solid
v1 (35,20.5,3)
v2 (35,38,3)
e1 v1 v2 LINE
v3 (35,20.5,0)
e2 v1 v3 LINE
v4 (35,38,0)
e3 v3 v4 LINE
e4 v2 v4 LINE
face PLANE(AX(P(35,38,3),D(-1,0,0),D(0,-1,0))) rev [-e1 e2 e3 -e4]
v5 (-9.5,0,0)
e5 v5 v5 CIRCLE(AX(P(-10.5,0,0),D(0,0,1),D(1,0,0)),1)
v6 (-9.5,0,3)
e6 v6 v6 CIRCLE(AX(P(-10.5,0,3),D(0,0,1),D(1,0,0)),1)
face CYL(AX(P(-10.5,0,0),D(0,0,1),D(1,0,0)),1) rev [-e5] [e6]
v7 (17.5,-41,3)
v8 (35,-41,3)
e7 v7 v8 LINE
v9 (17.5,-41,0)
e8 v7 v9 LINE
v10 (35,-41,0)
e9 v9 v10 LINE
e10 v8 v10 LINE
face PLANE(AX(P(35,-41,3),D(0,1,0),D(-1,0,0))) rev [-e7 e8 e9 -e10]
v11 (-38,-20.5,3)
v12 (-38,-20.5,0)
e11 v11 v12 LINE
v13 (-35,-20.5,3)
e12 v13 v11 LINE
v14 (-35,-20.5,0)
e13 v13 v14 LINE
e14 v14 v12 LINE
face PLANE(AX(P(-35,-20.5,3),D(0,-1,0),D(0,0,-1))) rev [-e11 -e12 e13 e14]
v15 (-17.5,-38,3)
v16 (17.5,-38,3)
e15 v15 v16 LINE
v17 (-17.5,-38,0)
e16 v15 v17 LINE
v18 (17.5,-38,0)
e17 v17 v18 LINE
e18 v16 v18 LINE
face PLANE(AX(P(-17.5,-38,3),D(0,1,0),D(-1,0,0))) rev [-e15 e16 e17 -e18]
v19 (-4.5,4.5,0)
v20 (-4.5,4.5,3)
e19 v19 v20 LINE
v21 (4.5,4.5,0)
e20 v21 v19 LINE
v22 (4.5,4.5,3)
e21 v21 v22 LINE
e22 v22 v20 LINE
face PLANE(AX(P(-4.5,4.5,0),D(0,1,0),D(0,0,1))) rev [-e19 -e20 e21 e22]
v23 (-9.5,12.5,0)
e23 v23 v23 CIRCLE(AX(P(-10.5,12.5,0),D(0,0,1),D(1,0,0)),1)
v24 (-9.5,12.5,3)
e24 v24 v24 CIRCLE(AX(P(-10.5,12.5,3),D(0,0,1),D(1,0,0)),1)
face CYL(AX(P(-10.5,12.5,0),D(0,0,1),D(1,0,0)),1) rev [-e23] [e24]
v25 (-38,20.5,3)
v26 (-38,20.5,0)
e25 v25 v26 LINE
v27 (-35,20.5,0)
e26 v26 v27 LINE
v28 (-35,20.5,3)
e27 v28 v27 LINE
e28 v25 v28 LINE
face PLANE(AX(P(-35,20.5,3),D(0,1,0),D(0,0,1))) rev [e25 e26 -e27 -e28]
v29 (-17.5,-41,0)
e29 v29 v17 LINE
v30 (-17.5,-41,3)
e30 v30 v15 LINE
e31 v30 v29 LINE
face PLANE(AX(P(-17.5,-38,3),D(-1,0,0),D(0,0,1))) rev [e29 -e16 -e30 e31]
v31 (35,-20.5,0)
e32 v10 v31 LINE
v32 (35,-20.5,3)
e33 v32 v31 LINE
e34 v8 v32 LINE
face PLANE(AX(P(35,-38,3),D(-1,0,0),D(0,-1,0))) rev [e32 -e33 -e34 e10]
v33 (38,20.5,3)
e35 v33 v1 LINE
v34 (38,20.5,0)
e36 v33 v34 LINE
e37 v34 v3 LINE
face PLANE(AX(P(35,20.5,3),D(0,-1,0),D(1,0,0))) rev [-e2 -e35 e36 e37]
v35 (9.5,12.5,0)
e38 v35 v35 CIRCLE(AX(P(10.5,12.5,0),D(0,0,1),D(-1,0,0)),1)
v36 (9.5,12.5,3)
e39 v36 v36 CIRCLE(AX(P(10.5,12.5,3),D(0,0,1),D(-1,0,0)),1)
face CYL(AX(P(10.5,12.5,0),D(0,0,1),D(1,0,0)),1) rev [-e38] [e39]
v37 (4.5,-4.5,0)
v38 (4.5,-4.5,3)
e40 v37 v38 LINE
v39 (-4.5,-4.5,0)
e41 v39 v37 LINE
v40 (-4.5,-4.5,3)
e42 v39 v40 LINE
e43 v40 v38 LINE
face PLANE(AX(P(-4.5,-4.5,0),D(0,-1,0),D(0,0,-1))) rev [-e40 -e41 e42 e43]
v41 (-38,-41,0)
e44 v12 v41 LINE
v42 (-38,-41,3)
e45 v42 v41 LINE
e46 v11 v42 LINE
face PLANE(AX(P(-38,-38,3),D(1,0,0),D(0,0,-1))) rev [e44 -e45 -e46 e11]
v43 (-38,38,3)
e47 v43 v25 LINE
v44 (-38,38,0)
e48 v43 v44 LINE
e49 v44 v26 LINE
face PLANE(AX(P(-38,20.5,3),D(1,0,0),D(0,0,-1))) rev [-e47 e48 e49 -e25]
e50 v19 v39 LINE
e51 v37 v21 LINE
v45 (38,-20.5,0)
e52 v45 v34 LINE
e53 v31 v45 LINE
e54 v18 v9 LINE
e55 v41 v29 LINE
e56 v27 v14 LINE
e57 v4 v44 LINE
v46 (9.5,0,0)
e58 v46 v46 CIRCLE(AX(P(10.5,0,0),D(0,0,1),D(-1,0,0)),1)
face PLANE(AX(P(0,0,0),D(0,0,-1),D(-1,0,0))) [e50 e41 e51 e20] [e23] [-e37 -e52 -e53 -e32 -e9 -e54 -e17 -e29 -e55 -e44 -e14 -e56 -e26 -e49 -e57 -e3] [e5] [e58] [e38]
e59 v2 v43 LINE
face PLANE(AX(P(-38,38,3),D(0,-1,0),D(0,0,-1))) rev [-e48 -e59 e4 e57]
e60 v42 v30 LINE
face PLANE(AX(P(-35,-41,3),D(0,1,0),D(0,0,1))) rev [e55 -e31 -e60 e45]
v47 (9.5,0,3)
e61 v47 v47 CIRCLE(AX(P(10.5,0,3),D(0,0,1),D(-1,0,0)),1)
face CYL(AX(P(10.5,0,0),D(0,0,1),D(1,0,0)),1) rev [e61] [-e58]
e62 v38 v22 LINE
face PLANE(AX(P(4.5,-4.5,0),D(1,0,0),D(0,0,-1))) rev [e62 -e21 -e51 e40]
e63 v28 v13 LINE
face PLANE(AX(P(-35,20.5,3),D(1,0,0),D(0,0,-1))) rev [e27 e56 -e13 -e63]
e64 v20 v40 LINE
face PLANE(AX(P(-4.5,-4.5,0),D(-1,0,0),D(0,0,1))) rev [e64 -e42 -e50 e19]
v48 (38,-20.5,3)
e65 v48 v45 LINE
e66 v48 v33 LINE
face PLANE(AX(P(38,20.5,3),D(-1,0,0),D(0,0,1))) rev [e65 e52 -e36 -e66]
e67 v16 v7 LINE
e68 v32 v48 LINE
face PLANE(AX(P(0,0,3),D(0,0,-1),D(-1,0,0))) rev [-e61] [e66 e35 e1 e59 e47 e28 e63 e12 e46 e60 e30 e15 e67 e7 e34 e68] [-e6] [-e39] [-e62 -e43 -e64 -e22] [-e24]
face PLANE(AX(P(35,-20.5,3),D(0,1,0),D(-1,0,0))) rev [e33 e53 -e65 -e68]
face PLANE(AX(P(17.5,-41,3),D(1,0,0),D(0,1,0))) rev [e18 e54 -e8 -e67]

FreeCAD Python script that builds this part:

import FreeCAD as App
import Part
import Sketcher
Q = App.Units.Quantity

doc = App.newDocument("Part")
body = doc.addObject("PartDesign::Body", "Body")

# Sketch on XY plane
sketch1 = body.newObject("Sketcher::SketchObject", "Sketch")
sketch1.AttachmentSupport = (doc.getObject("XY_Plane"), [""])
sketch1.MapMode = "FlatFace"
sketch1.addGeometry(Part.LineSegment(App.Vector(35, 38, 0), App.Vector(-38, 38, 0)), False)
sketch1.addGeometry(Part.LineSegment(App.Vector(-38, 38, 0), App.Vector(-38, 20.5, 0)), False)
sketch1.addGeometry(Part.LineSegment(App.Vector(-38, 20.5, 0), App.Vector(-35, 20.5, 0)), False)
sketch1.addGeometry(Part.LineSegment(App.Vector(-35, 20.5, 0), App.Vector(-35, -20.5, 0)), False)
sketch1.addGeometry(Part.LineSegment(App.Vector(-35, -20.5, 0), App.Vector(-38, -20.5, 0)), False)
sketch1.addGeometry(Part.LineSegment(App.Vector(-38, -20.5, 0), App.Vector(-38, -41, 0)), False)
sketch1.addGeometry(Part.LineSegment(App.Vector(-38, -41, 0), App.Vector(-17.5, -41, 0)), False)
sketch1.addGeometry(Part.LineSegment(App.Vector(-17.5, -41, 0), App.Vector(-17.5, -38, 0)), False)
sketch1.addGeometry(Part.LineSegment(App.Vector(-17.5, -38, 0), App.Vector(17.5, -38, 0)), False)
sketch1.addGeometry(Part.LineSegment(App.Vector(17.5, -38, 0), App.Vector(17.5, -41, 0)), False)
sketch1.addGeometry(Part.LineSegment(App.Vector(17.5, -41, 0), App.Vector(35, -41, 0)), False)
sketch1.addGeometry(Part.LineSegment(App.Vector(35, -41, 0), App.Vector(35, -20.5, 0)), False)
sketch1.addGeometry(Part.LineSegment(App.Vector(35, -20.5, 0), App.Vector(38, -20.5, 0)), False)
sketch1.addGeometry(Part.LineSegment(App.Vector(38, -20.5, 0), App.Vector(38, 20.5, 0)), False)
sketch1.addGeometry(Part.LineSegment(App.Vector(38, 20.5, 0), App.Vector(35, 20.5, 0)), False)
sketch1.addGeometry(Part.LineSegment(App.Vector(35, 20.5, 0), App.Vector(35, 38, 0)), False)
sketch1.addConstraint(Sketcher.Constraint("Coincident", 0, 2, 1, 1))
sketch1.addConstraint(Sketcher.Constraint("Coincident", 1, 2, 2, 1))
sketch1.addConstraint(Sketcher.Constraint("Coincident", 2, 2, 3, 1))
sketch1.addConstraint(Sketcher.Constraint("Coincident", 3, 2, 4, 1))
sketch1.addConstraint(Sketcher.Constraint("Coincident", 4, 2, 5, 1))
sketch1.addConstraint(Sketcher.Constraint("Coincident", 5, 2, 6, 1))
sketch1.addConstraint(Sketcher.Constraint("Coincident", 6, 2, 7, 1))
sketch1.addConstraint(Sketcher.Constraint("Coincident", 7, 2, 8, 1))
sketch1.addConstraint(Sketcher.Constraint("Coincident", 8, 2, 9, 1))
sketch1.addConstraint(Sketcher.Constraint("Coincident", 9, 2, 10, 1))
sketch1.addConstraint(Sketcher.Constraint("Coincident", 10, 2, 11, 1))
sketch1.addConstraint(Sketcher.Constraint("Coincident", 11, 2, 12, 1))
sketch1.addConstraint(Sketcher.Constraint("Coincident", 12, 2, 13, 1))
sketch1.addConstraint(Sketcher.Constraint("Coincident", 13, 2, 14, 1))
sketch1.addConstraint(Sketcher.Constraint("Coincident", 14, 2, 15, 1))
sketch1.addConstraint(Sketcher.Constraint("Coincident", 15, 2, 0, 1))
sketch1.addConstraint(Sketcher.Constraint("Horizontal", 0))
sketch1.addConstraint(Sketcher.Constraint("Vertical", 1))
sketch1.addConstraint(Sketcher.Constraint("Horizontal", 2))
sketch1.addConstraint(Sketcher.Constraint("Vertical", 3))
sketch1.addConstraint(Sketcher.Constraint("Horizontal", 4))
sketch1.addConstraint(Sketcher.Constraint("Vertical", 5))
sketch1.addConstraint(Sketcher.Constraint("Horizontal", 6))
sketch1.addConstraint(Sketcher.Constraint("Vertical", 7))
sketch1.addConstraint(Sketcher.Constraint("Horizontal", 8))
sketch1.addConstraint(Sketcher.Constraint("Vertical", 9))
sketch1.addConstraint(Sketcher.Constraint("Horizontal", 10))
sketch1.addConstraint(Sketcher.Constraint("Vertical", 11))
sketch1.addConstraint(Sketcher.Constraint("Horizontal", 12))
sketch1.addConstraint(Sketcher.Constraint("Vertical", 13))
sketch1.addConstraint(Sketcher.Constraint("Horizontal", 14))
sketch1.addConstraint(Sketcher.Constraint("Vertical", 15))
sketch1.addConstraint(Sketcher.Constraint("Symmetric", 2, 2, 11, 2, -1, 1))
sketch1.addConstraint(Sketcher.Constraint("Symmetric", 4, 2, 13, 2, -1, 1))
sketch1.addConstraint(Sketcher.Constraint("Symmetric", 6, 2, 9, 2, -2))
sketch1.addConstraint(Sketcher.Constraint("Symmetric", 1, 2, 13, 2, -2))
sketch1.addConstraint(Sketcher.Constraint("Vertical", 11, 2, 14, 2))
sketch1.addConstraint(Sketcher.Constraint("Equal", 10, 1))
sketch1.addConstraint(Sketcher.Constraint("Equal", 6, 5))
sketch1.addConstraint(Sketcher.Constraint("Equal", 14, 7))
sketch1.addConstraint(Sketcher.Constraint("DistanceX", 0, 2, 0, 1, Q("73 mm")))
sketch1.addConstraint(Sketcher.Constraint("DistanceX", 2, 1, 2, 2, Q("3 mm")))
sketch1.addConstraint(Sketcher.Constraint("DistanceX", 8, 1, 8, 2, Q("35 mm")))
sketch1.addConstraint(Sketcher.Constraint("DistanceY", 3, 2, 3, 1, Q("41 mm")))
pad1 = body.newObject("PartDesign::Pad", "Pad")
pad1.Profile = sketch1
pad1.Length = 3

# Sketch on XY plane
sketch2 = body.newObject("Sketcher::SketchObject", "Sketch001")
sketch2.AttachmentSupport = (doc.getObject("XY_Plane"), [""])
sketch2.MapMode = "FlatFace"
sketch2.AttachmentOffset = App.Placement(App.Vector(0, 0, 3), App.Rotation())
sketch2.addGeometry(Part.Circle(App.Vector(-10.5, 12.5, 0), App.Vector(0, 0, 1), 1), False)
sketch2.addGeometry(Part.Circle(App.Vector(-10.5, 0, 0), App.Vector(0, 0, 1), 1), False)
sketch2.addGeometry(Part.Circle(App.Vector(10.5, 12.5, 0), App.Vector(0, 0, 1), 1), False)
sketch2.addGeometry(Part.Circle(App.Vector(10.5, 0, 0), App.Vector(0, 0, 1), 1), False)
sketch2.addGeometry(Part.LineSegment(App.Vector(-4.5, 4.5, 0), App.Vector(-4.5, -4.5, 0)), False)
sketch2.addGeometry(Part.LineSegment(App.Vector(-4.5, -4.5, 0), App.Vector(4.5, -4.5, 0)), False)
sketch2.addGeometry(Part.LineSegment(App.Vector(4.5, -4.5, 0), App.Vector(4.5, 4.5, 0)), False)
sketch2.addGeometry(Part.LineSegment(App.Vector(4.5, 4.5, 0), App.Vector(-4.5, 4.5, 0)), False)
sketch2.addConstraint(Sketcher.Constraint("Coincident", 4, 2, 5, 1))
sketch2.addConstraint(Sketcher.Constraint("Coincident", 5, 2, 6, 1))
sketch2.addConstraint(Sketcher.Constraint("Coincident", 6, 2, 7, 1))
sketch2.addConstraint(Sketcher.Constraint("Coincident", 7, 2, 4, 1))
sketch2.addConstraint(Sketcher.Constraint("Vertical", 4))
sketch2.addConstraint(Sketcher.Constraint("Horizontal", 5))
sketch2.addConstraint(Sketcher.Constraint("Vertical", 6))
sketch2.addConstraint(Sketcher.Constraint("Horizontal", 7))
sketch2.addConstraint(Sketcher.Constraint("Equal", 0, 1))
sketch2.addConstraint(Sketcher.Constraint("Equal", 1, 2))
sketch2.addConstraint(Sketcher.Constraint("Equal", 2, 3))
sketch2.addConstraint(Sketcher.Constraint("Symmetric", 1, 3, 3, 3, -1, 1))
sketch2.addConstraint(Sketcher.Constraint("Symmetric", 4, 2, 6, 2, -1, 1))
sketch2.addConstraint(Sketcher.Constraint("Symmetric", 0, 3, 2, 3, -2))
sketch2.addConstraint(Sketcher.Constraint("PointOnObject", 1, 3, -1))
sketch2.addConstraint(Sketcher.Constraint("Vertical", 0, 3, 1, 3))
sketch2.addConstraint(Sketcher.Constraint("Equal", 7, 4))
sketch2.addConstraint(Sketcher.Constraint("Diameter", 0, Q("2 mm")))
sketch2.addConstraint(Sketcher.Constraint("DistanceX", 5, 1, 5, 2, Q("9 mm")))
sketch2.addConstraint(Sketcher.Constraint("DistanceX", 0, 3, 2, 3, Q("21 mm")))
sketch2.addConstraint(Sketcher.Constraint("DistanceY", 4, 2, 0, 3, Q("17 mm")))
pocket1 = body.newObject("PartDesign::Pocket", "Pocket")
pocket1.Profile = sketch2
pocket1.Length = 3

doc.recompute()
